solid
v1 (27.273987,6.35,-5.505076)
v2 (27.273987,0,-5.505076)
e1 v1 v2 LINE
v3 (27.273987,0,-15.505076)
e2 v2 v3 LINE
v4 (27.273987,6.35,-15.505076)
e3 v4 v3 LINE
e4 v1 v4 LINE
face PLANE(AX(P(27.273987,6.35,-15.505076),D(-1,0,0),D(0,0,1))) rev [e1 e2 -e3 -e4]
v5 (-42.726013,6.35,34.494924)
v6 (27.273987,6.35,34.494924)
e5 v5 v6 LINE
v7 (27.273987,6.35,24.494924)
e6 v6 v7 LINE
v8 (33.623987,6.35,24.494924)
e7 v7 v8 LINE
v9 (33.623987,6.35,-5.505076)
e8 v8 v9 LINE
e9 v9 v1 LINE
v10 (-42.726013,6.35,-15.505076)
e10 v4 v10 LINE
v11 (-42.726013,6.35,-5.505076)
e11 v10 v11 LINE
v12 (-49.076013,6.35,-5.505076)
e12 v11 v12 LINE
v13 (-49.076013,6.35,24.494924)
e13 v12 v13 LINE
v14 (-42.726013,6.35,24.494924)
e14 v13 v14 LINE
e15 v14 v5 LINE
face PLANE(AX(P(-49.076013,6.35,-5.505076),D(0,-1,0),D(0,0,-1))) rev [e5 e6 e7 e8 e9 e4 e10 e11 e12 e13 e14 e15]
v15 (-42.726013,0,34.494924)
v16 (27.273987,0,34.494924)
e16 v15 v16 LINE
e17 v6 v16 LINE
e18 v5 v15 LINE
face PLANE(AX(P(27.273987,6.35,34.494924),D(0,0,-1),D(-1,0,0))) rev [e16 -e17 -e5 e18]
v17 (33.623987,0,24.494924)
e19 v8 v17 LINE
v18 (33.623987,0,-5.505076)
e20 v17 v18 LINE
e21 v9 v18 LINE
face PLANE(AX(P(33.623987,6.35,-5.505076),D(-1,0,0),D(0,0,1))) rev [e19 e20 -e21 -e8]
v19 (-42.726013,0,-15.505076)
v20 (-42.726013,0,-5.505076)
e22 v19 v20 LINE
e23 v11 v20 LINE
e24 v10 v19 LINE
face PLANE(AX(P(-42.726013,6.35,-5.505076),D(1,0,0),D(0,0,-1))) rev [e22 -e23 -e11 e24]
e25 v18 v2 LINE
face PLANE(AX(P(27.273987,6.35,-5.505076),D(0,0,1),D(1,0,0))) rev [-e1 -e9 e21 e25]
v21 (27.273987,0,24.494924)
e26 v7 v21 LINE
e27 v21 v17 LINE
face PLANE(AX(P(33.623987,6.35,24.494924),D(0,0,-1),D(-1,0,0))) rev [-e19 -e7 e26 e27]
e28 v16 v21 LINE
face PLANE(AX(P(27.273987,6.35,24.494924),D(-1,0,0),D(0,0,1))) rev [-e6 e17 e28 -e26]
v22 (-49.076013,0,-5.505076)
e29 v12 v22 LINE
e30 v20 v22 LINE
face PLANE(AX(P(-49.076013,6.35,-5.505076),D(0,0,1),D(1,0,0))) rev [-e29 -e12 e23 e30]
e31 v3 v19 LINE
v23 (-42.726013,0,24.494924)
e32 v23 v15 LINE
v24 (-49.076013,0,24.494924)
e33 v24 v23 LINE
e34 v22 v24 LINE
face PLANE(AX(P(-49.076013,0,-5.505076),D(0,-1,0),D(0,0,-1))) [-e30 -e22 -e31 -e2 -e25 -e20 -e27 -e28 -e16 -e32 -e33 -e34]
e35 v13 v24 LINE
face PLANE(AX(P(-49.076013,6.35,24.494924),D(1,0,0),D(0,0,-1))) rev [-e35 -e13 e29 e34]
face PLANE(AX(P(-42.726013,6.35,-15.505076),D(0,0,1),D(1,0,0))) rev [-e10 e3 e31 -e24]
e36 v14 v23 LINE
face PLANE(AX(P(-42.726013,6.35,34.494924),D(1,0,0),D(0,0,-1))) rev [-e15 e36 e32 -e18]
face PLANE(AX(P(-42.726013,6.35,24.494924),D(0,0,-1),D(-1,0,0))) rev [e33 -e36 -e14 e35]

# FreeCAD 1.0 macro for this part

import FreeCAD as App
import Part
import Sketcher


def add_polygon(sketch, points):
    """Adds a closed chain of lines whose ends are joined by coincident constraints."""
    first, n = sketch.GeometryCount, len(points)
    for a, b in zip(points, points[1:] + points[:1]):
        sketch.addGeometry(Part.LineSegment(App.Vector(*a, 0), App.Vector(*b, 0)), False)
    for i in range(n):
        sketch.addConstraint(Sketcher.Constraint("Coincident", first + i, 2, first + (i + 1) % n, 1))

doc = App.newDocument("Part")
body = doc.addObject("PartDesign::Body", "Body")

# Sketch on XZ plane
sketch1 = body.newObject("Sketcher::SketchObject", "Sketch")
sketch1.AttachmentSupport = (doc.getObject("XZ_Plane"), [""])
sketch1.MapMode = "FlatFace"
add_polygon(sketch1, [(-43, -6), (-49, -6), (-49, 24), (-43, 24), (-43, 34), (27, 34), (27, 24), (34, 24), (34, -6), (27, -6), (27, -16), (-43, -16)])  # lines 0-11
sketch1.addConstraint([
    Sketcher.Constraint("Horizontal", 0),
    Sketcher.Constraint("Vertical", 1),
    Sketcher.Constraint("Horizontal", 2),
    Sketcher.Constraint("Vertical", 3),
    Sketcher.Constraint("Horizontal", 4),
    Sketcher.Constraint("Vertical", 5),
    Sketcher.Constraint("Horizontal", 6),
    Sketcher.Constraint("Vertical", 7),
    Sketcher.Constraint("Horizontal", 8),
    Sketcher.Constraint("Vertical", 9),
    Sketcher.Constraint("Horizontal", 10),
    Sketcher.Constraint("Vertical", 11),
    Sketcher.Constraint("Horizontal", 2, 2, 5, 2),
    Sketcher.Constraint("Horizontal", 0, 2, 7, 2),
    Sketcher.Constraint("Vertical", 5, 2, 8, 2),
    Sketcher.Constraint("Vertical", 3, 2, 10, 2),
    Sketcher.Constraint("Equal", 2, 6),
    Sketcher.Constraint("Equal", 5, 9),
    Sketcher.Constraint("DistanceX", 4, 1, 4, 2, 70.0),
    Sketcher.Constraint("DistanceY", 1, 1, 1, 2, 30.0),
    Sketcher.Constraint("DistanceY", 3, 1, 3, 2, 10.0),
    Sketcher.Constraint("DistanceX", 0, 2, 0, 1, 6.35),
    Sketcher.Constraint("DistanceX", 0, 2, -1, 1, 49.076013),
    Sketcher.Constraint("DistanceY", 0, 2, -1, 1, 5.505076),
])
pad1 = body.newObject("PartDesign::Pad", "Pad")
pad1.Profile = sketch1
pad1.Length = 6.35
pad1.Reversed = True

doc.recompute()
